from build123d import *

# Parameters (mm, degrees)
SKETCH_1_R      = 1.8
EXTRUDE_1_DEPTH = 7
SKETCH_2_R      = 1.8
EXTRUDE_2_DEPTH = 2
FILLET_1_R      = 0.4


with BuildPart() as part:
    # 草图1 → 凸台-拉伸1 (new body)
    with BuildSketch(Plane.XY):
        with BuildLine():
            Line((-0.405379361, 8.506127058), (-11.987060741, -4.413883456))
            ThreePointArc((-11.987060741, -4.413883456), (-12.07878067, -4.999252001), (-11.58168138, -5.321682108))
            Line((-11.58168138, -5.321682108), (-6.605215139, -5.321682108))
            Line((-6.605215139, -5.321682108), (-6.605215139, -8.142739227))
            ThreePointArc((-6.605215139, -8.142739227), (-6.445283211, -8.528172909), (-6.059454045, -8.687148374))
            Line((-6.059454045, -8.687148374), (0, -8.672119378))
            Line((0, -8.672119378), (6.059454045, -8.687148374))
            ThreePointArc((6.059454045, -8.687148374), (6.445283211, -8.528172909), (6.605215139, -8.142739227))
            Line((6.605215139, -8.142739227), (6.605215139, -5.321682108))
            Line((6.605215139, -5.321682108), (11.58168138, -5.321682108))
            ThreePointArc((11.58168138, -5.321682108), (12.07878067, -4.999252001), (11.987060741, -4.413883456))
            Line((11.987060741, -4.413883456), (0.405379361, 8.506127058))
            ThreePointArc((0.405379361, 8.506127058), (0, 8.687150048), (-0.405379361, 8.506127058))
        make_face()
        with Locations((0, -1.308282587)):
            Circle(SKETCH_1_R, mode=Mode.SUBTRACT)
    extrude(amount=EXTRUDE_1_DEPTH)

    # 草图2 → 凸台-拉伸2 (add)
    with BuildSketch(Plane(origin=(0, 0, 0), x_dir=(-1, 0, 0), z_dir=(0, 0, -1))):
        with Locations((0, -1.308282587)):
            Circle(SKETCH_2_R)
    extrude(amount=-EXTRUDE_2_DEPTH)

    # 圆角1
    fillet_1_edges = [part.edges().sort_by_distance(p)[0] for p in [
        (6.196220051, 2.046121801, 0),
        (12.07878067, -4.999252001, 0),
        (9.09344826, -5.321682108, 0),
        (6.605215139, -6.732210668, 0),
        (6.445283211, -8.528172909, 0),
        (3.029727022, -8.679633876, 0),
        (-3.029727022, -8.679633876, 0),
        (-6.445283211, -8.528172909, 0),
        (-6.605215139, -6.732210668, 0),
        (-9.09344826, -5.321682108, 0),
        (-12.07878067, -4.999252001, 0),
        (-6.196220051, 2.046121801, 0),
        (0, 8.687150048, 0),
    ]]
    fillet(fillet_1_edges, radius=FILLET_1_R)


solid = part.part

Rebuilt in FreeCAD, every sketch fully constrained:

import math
import FreeCAD as App
import Part
import Sketcher


def edges_at(feature, points):
    """Names of the edges that pass closest to the given points."""
    edges = feature.Shape.Edges
    near = lambda p: min(range(len(edges)), key=lambda i: edges[i].distToShape(Part.Vertex(*p))[0])
    return sorted({f"Edge{near(p) + 1}" for p in points})

doc = App.newDocument("Part")
body = doc.addObject("PartDesign::Body", "Body")

sketch1 = body.newObject("Sketcher::SketchObject", "Sketch")
sketch1.AttachmentSupport = (doc.getObject("XY_Plane"), [""])
sketch1.MapMode = "FlatFace"
sketch1.addGeometry(Part.LineSegment(App.Vector(-0.4, 8.5, 0), App.Vector(-12, -4.4, 0)), False)
sketch1.addGeometry(Part.ArcOfCircle(Part.Circle(App.Vector(-11.6, -4.8, 0), App.Vector(0, 0, 1), 0.5), math.radians(138), math.radians(270)), False)
sketch1.addGeometry(Part.LineSegment(App.Vector(-11.6, -5.3, 0), App.Vector(-6.6, -5.3, 0)), False)
sketch1.addGeometry(Part.LineSegment(App.Vector(-6.6, -5.3, 0), App.Vector(-6.6, -8.1, 0)), False)
sketch1.addGeometry(Part.ArcOfCircle(Part.Circle(App.Vector(-6.1, -8.1, 0), App.Vector(0, 0, 1), 0.5), math.radians(180), math.radians(270)), False)
sketch1.addGeometry(Part.LineSegment(App.Vector(-6.1, -8.7, 0), App.Vector(0, -8.7, 0)), False)
sketch1.addGeometry(Part.LineSegment(App.Vector(0, -8.7, 0), App.Vector(6.1, -8.7, 0)), False)
sketch1.addGeometry(Part.ArcOfCircle(Part.Circle(App.Vector(6.1, -8.1, 0), App.Vector(0, 0, 1), 0.5), math.radians(-90), math.radians(0)), False)
sketch1.addGeometry(Part.LineSegment(App.Vector(6.6, -8.1, 0), App.Vector(6.6, -5.3, 0)), False)
sketch1.addGeometry(Part.LineSegment(App.Vector(6.6, -5.3, 0), App.Vector(11.6, -5.3, 0)), False)
sketch1.addGeometry(Part.ArcOfCircle(Part.Circle(App.Vector(11.6, -4.8, 0), App.Vector(0, 0, 1), 0.5), math.radians(-90), math.radians(42)), False)
sketch1.addGeometry(Part.LineSegment(App.Vector(12, -4.4, 0), App.Vector(0.4, 8.5, 0)), False)
sketch1.addGeometry(Part.ArcOfCircle(Part.Circle(App.Vector(0, 8.1, 0), App.Vector(0, 0, 1), 0.5), math.radians(42), math.radians(138)), False)
sketch1.addGeometry(Part.Circle(App.Vector(0, -1.3, 0), App.Vector(0, 0, 1), 1.8), False)
sketch1.addConstraint(Sketcher.Constraint("Tangent", 0, 2, 1, 1))
sketch1.addConstraint(Sketcher.Constraint("Tangent", 1, 2, 2, 1))
sketch1.addConstraint(Sketcher.Constraint("Coincident", 2, 2, 3, 1))
sketch1.addConstraint(Sketcher.Constraint("Tangent", 3, 2, 4, 1))
sketch1.addConstraint(Sketcher.Constraint("Tangent", 4, 2, 5, 1))
sketch1.addConstraint(Sketcher.Constraint("Coincident", 5, 2, 6, 1))
sketch1.addConstraint(Sketcher.Constraint("Tangent", 6, 2, 7, 1))
sketch1.addConstraint(Sketcher.Constraint("Tangent", 7, 2, 8, 1))
sketch1.addConstraint(Sketcher.Constraint("Coincident", 8, 2, 9, 1))
sketch1.addConstraint(Sketcher.Constraint("Tangent", 9, 2, 10, 1))
sketch1.addConstraint(Sketcher.Constraint("Tangent", 10, 2, 11, 1))
sketch1.addConstraint(Sketcher.Constraint("Tangent", 11, 2, 12, 1))
sketch1.addConstraint(Sketcher.Constraint("Tangent", 12, 2, 0, 1))
sketch1.addConstraint(Sketcher.Constraint("Horizontal", 2))
sketch1.addConstraint(Sketcher.Constraint("Vertical", 3))
sketch1.addConstraint(Sketcher.Constraint("Vertical", 8))
sketch1.addConstraint(Sketcher.Constraint("Horizontal", 9))
sketch1.addConstraint(Sketcher.Constraint("Equal", 1, 4))
sketch1.addConstraint(Sketcher.Constraint("Equal", 4, 7))
sketch1.addConstraint(Sketcher.Constraint("Equal", 7, 10))
sketch1.addConstraint(Sketcher.Constraint("Equal", 10, 12))
sketch1.addConstraint(Sketcher.Constraint("Symmetric", 4, 3, 7, 3, -2))
sketch1.addConstraint(Sketcher.Constraint("Symmetric", 1, 3, 10, 3, -2))
sketch1.addConstraint(Sketcher.Constraint("PointOnObject", 12, 3, -2))
sketch1.addConstraint(Sketcher.Constraint("PointOnObject", 13, 3, -2))
sketch1.addConstraint(Sketcher.Constraint("PointOnObject", 5, 2, -2))
sketch1.addConstraint(Sketcher.Constraint("Diameter", 13, 3.6))
sketch1.addConstraint(Sketcher.Constraint("Radius", 1, 0.544411))
sketch1.addConstraint(Sketcher.Constraint("DistanceY", 0, 2, 13, 3, 3.105601))
sketch1.addConstraint(Sketcher.Constraint("DistanceY", 1, 2, 0, 2, 0.907799))
sketch1.addConstraint(Sketcher.Constraint("Distance", 0, 17.351139))
sketch1.addConstraint(Sketcher.Constraint("DistanceX", 2, 1, 2, 2, 4.976466))
sketch1.addConstraint(Sketcher.Constraint("DistanceY", 3, 2, 3, 1, 2.821057))
sketch1.addConstraint(Sketcher.Constraint("DistanceY", 1, 3, -1, 1, 4.777271))
sketch1.addConstraint(Sketcher.Constraint("DistanceY", 5, 2, -1, 1, 8.672119))
pad1 = body.newObject("PartDesign::Pad", "Pad")
pad1.Profile = sketch1
pad1.Length = 7

sketch2 = body.newObject("Sketcher::SketchObject", "Sketch001")
sketch2.AttachmentSupport = (doc.getObject("XY_Plane"), [""])
sketch2.MapMode = "FlatFace"
sketch2.addGeometry(Part.Circle(App.Vector(0, -1.3, 0), App.Vector(0, 0, 1), 1.8), False)
sketch2.addConstraint(Sketcher.Constraint("PointOnObject", 0, 3, -2))
sketch2.addConstraint(Sketcher.Constraint("Diameter", 0, 3.6))
sketch2.addConstraint(Sketcher.Constraint("DistanceY", 0, 3, -1, 1, 1.308283))
pad2 = body.newObject("PartDesign::Pad", "Pad001")
pad2.Profile = sketch2
pad2.Length = 2
doc.recompute()

fillet = body.newObject("PartDesign::Fillet", "Fillet")
fillet.Base = (pad2, edges_at(pad2, [
    (6.196, 2.046, 0),
    (12.079, -4.999, 0),
    (9.093, -5.322, 0),
    (6.605, -6.732, 0),
    (6.445, -8.528, 0),
    (3.03, -8.68, 0),
    (-3.03, -8.68, 0),
    (-6.445, -8.528, 0),
    (-6.605, -6.732, 0),
    (-9.093, -5.322, 0),
    (-12.079, -4.999, 0),
    (-6.196, 2.046, 0),
    (0, 8.687, 0),
]))
fillet.Radius = 0.4

doc.recompute()
